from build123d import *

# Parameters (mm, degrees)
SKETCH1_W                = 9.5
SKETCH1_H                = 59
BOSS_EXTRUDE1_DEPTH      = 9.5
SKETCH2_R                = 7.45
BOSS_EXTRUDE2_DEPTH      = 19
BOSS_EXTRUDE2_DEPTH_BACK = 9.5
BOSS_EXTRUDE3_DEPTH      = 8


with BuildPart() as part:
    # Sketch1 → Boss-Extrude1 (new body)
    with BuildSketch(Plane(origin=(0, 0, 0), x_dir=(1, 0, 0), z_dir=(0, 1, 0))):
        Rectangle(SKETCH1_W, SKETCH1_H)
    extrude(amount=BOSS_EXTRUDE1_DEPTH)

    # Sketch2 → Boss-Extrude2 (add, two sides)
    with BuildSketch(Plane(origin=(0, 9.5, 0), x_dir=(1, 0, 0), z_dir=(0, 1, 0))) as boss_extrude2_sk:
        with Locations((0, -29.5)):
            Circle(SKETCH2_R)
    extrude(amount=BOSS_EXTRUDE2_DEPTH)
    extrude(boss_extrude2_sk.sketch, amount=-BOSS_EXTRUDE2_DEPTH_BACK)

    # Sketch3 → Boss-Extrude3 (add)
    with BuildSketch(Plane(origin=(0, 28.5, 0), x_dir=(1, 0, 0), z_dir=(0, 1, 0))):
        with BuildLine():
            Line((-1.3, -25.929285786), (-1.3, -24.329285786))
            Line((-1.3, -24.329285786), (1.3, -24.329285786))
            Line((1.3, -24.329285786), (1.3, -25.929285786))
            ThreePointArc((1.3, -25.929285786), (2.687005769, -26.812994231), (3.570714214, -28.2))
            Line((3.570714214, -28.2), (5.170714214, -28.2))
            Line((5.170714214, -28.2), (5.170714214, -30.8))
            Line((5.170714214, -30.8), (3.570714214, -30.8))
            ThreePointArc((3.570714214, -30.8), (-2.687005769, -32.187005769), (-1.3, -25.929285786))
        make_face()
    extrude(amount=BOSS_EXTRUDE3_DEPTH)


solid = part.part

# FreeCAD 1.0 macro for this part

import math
import FreeCAD as App
import Part
import Sketcher

V = App.Vector

doc = App.newDocument("Part")
body = doc.addObject("PartDesign::Body", "Body")

# Sketch on XZ plane
sketch1 = body.newObject("Sketcher::SketchObject", "Sketch")
sketch1.AttachmentSupport = (doc.getObject("XZ_Plane"), [""])
sketch1.MapMode = "FlatFace"
sketch1.addGeometry([
    Part.LineSegment(V(-5, -30, 0), V(-5, 30, 0)),
    Part.LineSegment(V(-5, 30, 0), V(5, 30, 0)),
    Part.LineSegment(V(5, 30, 0), V(5, -30, 0)),
    Part.LineSegment(V(5, -30, 0), V(-5, -30, 0)),
], False)
sketch1.addConstraint([
    Sketcher.Constraint("Coincident", 0, 2, 1, 1),
    Sketcher.Constraint("Coincident", 1, 2, 2, 1),
    Sketcher.Constraint("Coincident", 2, 2, 3, 1),
    Sketcher.Constraint("Coincident", 3, 2, 0, 1),
    Sketcher.Constraint("Vertical", 0),
    Sketcher.Constraint("Horizontal", 1),
    Sketcher.Constraint("Vertical", 2),
    Sketcher.Constraint("Horizontal", 3),
    Sketcher.Constraint("Symmetric", 0, 2, 2, 2, -1, 1),
    Sketcher.Constraint("DistanceY", 0, 1, 0, 2, 59.0),
    Sketcher.Constraint("DistanceX", 1, 1, 1, 2, 9.5),
])
pad1 = body.newObject("PartDesign::Pad", "Pad")
pad1.Profile = sketch1
pad1.Length = 9.5
pad1.Reversed = True

# Sketch on XZ plane
sketch2 = body.newObject("Sketcher::SketchObject", "Sketch001")
sketch2.AttachmentSupport = (doc.getObject("XZ_Plane"), [""])
sketch2.MapMode = "FlatFace"
sketch2.AttachmentOffset = App.Placement(V(0, 0, -9.5), App.Rotation())
sketch2.addGeometry(Part.Circle(V(0, 30, 0), V(0, 0, 1), 7), False)
sketch2.addConstraint([
    Sketcher.Constraint("PointOnObject", 0, 3, -2),
    Sketcher.Constraint("Diameter", 0, 14.9),
    Sketcher.Constraint("DistanceY", -1, 1, 0, 3, 29.5),
])
pad2 = body.newObject("PartDesign::Pad", "Pad001")
pad2.Profile = sketch2
pad2.Type = "TwoLengths"
pad2.Length = 19
pad2.Length2 = 9.5
pad2.Reversed = True

# Sketch on XZ plane
sketch3 = body.newObject("Sketcher::SketchObject", "Sketch002")
sketch3.AttachmentSupport = (doc.getObject("XZ_Plane"), [""])
sketch3.MapMode = "FlatFace"
sketch3.AttachmentOffset = App.Placement(V(0, 0, -28.5), App.Rotation())
sketch3.addGeometry([
    Part.LineSegment(V(-1.3, 24.3, 0), V(-1.3, 25.9, 0)),  # 0
    Part.ArcOfCircle(Part.Circle(V(0, 29.5, 0), V(0, 0, 1), 3.8), math.radians(20), math.radians(250)),  # 1
    Part.LineSegment(V(3.6, 30.8, 0), V(5.2, 30.8, 0)),  # 2
    Part.LineSegment(V(5.2, 30.8, 0), V(5.2, 28.2, 0)),  # 3
    Part.LineSegment(V(5.2, 28.2, 0), V(3.6, 28.2, 0)),  # 4
    Part.ArcOfCircle(Part.Circle(V(0, 29.5, 0), V(0, 0, 1), 3.8), math.radians(-70), math.radians(-20)),  # 5
    Part.LineSegment(V(1.3, 25.9, 0), V(1.3, 24.3, 0)),  # 6
    Part.LineSegment(V(1.3, 24.3, 0), V(-1.3, 24.3, 0)),  # 7
], False)
sketch3.addConstraint([
    Sketcher.Constraint("Coincident", 0, 2, 1, 2),
    Sketcher.Constraint("Coincident", 1, 1, 2, 1),
    Sketcher.Constraint("Coincident", 2, 2, 3, 1),
    Sketcher.Constraint("Coincident", 3, 2, 4, 1),
    Sketcher.Constraint("Coincident", 4, 2, 5, 2),
    Sketcher.Constraint("Coincident", 5, 1, 6, 1),
    Sketcher.Constraint("Coincident", 6, 2, 7, 1),
    Sketcher.Constraint("Coincident", 7, 2, 0, 1),
    Sketcher.Constraint("Vertical", 0),
    Sketcher.Constraint("Horizontal", 2),
    Sketcher.Constraint("Vertical", 3),
    Sketcher.Constraint("Horizontal", 4),
    Sketcher.Constraint("Vertical", 6),
    Sketcher.Constraint("Horizontal", 7),
    Sketcher.Constraint("Coincident", 5, 3, 1, 3),
    Sketcher.Constraint("Equal", 1, 5),
    Sketcher.Constraint("Symmetric", 0, 2, 5, 1, -2),
    Sketcher.Constraint("Vertical", 1, 1, 4, 2),
    Sketcher.Constraint("Equal", 4, 0),
    Sketcher.Constraint("Equal", 7, 3),
    Sketcher.Constraint("Radius", 1, 3.8),
    Sketcher.Constraint("DistanceX", 2, 1, 2, 2, 1.6),
    Sketcher.Constraint("DistanceX", 7, 2, 7, 1, 2.6),
    Sketcher.Constraint("DistanceY", -1, 1, 1, 3, 29.5),
])
pad3 = body.newObject("PartDesign::Pad", "Pad002")
pad3.Profile = sketch3
pad3.Length = 8
pad3.Reversed = True

doc.recompute()
